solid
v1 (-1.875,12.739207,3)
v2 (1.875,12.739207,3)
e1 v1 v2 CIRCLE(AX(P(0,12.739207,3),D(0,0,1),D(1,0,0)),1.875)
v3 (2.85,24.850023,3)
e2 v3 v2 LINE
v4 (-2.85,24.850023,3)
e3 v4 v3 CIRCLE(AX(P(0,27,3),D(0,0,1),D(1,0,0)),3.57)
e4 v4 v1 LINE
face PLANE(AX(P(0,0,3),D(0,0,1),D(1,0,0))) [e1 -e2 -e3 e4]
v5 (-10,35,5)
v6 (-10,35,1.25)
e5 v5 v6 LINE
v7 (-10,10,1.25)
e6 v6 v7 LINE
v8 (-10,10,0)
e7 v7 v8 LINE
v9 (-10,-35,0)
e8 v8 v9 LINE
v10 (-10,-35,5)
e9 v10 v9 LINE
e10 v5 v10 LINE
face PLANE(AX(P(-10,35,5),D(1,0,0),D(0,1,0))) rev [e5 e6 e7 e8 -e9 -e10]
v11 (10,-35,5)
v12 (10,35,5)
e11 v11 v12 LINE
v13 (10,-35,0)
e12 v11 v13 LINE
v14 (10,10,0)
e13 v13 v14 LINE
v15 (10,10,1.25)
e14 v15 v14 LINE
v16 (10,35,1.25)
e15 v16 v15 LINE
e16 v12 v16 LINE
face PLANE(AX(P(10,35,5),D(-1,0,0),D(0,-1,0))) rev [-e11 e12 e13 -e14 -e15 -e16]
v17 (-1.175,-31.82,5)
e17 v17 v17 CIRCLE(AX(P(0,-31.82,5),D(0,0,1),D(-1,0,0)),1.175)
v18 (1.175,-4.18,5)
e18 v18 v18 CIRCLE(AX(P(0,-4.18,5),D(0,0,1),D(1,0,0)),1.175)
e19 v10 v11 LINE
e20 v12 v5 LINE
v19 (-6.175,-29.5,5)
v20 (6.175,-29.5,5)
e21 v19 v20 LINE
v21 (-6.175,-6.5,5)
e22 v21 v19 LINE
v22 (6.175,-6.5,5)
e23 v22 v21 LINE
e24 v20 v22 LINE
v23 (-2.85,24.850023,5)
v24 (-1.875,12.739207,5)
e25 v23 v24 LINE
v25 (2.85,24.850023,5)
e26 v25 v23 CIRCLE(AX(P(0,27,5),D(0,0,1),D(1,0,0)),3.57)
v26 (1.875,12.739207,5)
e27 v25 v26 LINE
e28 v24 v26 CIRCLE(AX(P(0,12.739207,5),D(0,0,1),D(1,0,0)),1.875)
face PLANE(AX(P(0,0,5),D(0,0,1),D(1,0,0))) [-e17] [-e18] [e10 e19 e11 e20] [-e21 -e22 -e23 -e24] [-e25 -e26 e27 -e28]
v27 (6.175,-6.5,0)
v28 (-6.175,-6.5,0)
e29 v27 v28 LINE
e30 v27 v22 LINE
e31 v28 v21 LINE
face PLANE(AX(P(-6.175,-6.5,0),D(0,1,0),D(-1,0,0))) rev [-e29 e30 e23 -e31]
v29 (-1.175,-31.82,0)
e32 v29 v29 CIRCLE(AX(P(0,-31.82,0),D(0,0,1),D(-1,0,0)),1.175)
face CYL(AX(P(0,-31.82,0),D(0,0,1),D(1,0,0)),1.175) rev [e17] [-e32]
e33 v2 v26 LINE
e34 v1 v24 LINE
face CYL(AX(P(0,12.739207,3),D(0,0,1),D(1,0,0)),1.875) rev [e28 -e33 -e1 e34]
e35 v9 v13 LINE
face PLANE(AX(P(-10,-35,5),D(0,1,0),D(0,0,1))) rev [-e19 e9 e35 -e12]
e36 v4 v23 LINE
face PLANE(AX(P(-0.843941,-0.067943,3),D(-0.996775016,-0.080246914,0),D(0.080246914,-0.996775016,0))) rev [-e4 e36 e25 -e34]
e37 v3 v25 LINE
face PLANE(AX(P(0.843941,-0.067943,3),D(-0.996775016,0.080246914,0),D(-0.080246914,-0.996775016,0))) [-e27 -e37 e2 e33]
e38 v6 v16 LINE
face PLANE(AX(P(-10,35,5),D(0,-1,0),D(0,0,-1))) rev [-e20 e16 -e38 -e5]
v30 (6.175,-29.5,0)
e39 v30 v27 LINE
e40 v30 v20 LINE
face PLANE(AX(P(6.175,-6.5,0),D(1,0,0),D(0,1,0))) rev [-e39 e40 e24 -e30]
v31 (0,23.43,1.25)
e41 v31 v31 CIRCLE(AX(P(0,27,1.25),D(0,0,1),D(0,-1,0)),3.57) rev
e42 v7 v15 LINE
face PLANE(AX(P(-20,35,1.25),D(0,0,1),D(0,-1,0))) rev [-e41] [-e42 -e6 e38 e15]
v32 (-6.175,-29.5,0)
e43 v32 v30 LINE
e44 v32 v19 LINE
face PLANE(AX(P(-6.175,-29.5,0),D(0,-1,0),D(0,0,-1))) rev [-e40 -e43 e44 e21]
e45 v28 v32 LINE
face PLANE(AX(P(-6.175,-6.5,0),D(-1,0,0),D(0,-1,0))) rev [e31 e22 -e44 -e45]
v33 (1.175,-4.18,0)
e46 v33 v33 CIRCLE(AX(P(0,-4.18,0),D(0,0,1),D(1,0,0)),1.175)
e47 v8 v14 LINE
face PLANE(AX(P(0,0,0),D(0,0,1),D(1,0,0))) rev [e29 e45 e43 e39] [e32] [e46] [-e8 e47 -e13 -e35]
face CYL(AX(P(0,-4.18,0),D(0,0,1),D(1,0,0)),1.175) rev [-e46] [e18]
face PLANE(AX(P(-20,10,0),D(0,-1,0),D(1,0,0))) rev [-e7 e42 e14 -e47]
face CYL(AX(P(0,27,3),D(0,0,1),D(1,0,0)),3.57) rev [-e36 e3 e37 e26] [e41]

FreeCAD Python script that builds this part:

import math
import FreeCAD as App
import Part
import Sketcher

V = App.Vector
Q = App.Units.Quantity


def add_polygon(sketch, points):
    """Adds a closed chain of lines whose ends are joined by coincident constraints."""
    first, n = sketch.GeometryCount, len(points)
    for a, b in zip(points, points[1:] + points[:1]):
        sketch.addGeometry(Part.LineSegment(App.Vector(*a, 0), App.Vector(*b, 0)), False)
    for i in range(n):
        sketch.addConstraint(Sketcher.Constraint("Coincident", first + i, 2, first + (i + 1) % n, 1))

doc = App.newDocument("Part")
params = doc.addObject("Spreadsheet::Sheet", "Params")
for row, (alias, value) in enumerate([
    ("sketch1_width", "20 mm"),
    ("sketch1_height", "70 mm"),
    ("pad1_length", "5 mm"),
    ("sketch2_radius", "3.57 mm"),
    ("sketch2_length", "12.15 mm"),
    ("pocket1_length", "2 mm"),
    ("sketch3_diameter", "7.14 mm"),
    ("pocket2_length", "3 mm"),
    ("sketch4_diameter", "2.35 mm"),
    ("sketch4_height", "23 mm"),
    ("sketch4_width", "12.35 mm"),
    ("pocket3_length", "5 mm"),
    ("sketch5_width", "25 mm"),
    ("sketch5_height", "1.25 mm"),
    ("pocket4_length", "30 mm"),
], start=1):
    params.set(f"A{row}", alias)
    params.set(f"B{row}", "=" + value)
    params.setAlias(f"B{row}", alias)

body = doc.addObject("PartDesign::Body", "Body")

# Sketch on XY plane
sketch1 = body.newObject("Sketcher::SketchObject", "Sketch")
sketch1.AttachmentSupport = (doc.getObject("XY_Plane"), [""])
sketch1.MapMode = "FlatFace"
add_polygon(sketch1, [(-10, 35), (-10, -35), (10, -35), (10, 35)])  # lines 0-3
sketch1.addConstraint(Sketcher.Constraint("Vertical", 0))
sketch1.addConstraint(Sketcher.Constraint("Horizontal", 1))
sketch1.addConstraint(Sketcher.Constraint("Vertical", 2))
sketch1.addConstraint(Sketcher.Constraint("Horizontal", 3))
sketch1.addConstraint(Sketcher.Constraint("Symmetric", 0, 2, 2, 2, -1, 1))
sketch1.addConstraint(Sketcher.Constraint("DistanceX", 1, 1, 1, 2, Q("20 mm")))
sketch1.addConstraint(Sketcher.Constraint("DistanceY", 0, 2, 0, 1, Q("70 mm")))
sketch1.setExpression("Constraints[9]", "Params.sketch1_width")
sketch1.setExpression("Constraints[10]", "Params.sketch1_height")
pad1 = body.newObject("PartDesign::Pad", "Pad")
pad1.Profile = sketch1
pad1.setExpression("Length", "Params.pad1_length")

# Sketch on XY plane
sketch2 = body.newObject("Sketcher::SketchObject", "Sketch001")
sketch2.AttachmentSupport = (doc.getObject("XY_Plane"), [""])
sketch2.MapMode = "FlatFace"
sketch2.AttachmentOffset = App.Placement(V(0, 0, 5), App.Rotation())
sketch2.addGeometry(Part.LineSegment(V(-2.9, 24.9, 0), V(-1.9, 12.7, 0)), False)
sketch2.addGeometry(Part.ArcOfCircle(Part.Circle(V(0, 12.7, 0), V(0, 0, 1), 1.9), math.radians(180), math.radians(360)), False)
sketch2.addGeometry(Part.LineSegment(V(1.9, 12.7, 0), V(2.9, 24.9, 0)), False)
sketch2.addGeometry(Part.ArcOfCircle(Part.Circle(V(0, 27, 0), V(0, 0, 1), 3.6), math.radians(-37), math.radians(0)), False)
sketch2.addGeometry(Part.ArcOfCircle(Part.Circle(V(0, 27, 0), V(0, 0, 1), 3.6), math.radians(0), math.radians(217)), False)
sketch2.addConstraint(Sketcher.Constraint("Coincident", 0, 2, 1, 1))
sketch2.addConstraint(Sketcher.Constraint("Coincident", 1, 2, 2, 1))
sketch2.addConstraint(Sketcher.Constraint("Coincident", 2, 2, 3, 1))
sketch2.addConstraint(Sketcher.Constraint("Tangent", 3, 2, 4, 1))
sketch2.addConstraint(Sketcher.Constraint("Coincident", 4, 2, 0, 1))
sketch2.addConstraint(Sketcher.Constraint("Equal", 3, 4))
sketch2.addConstraint(Sketcher.Constraint("Symmetric", 0, 2, 1, 2, -2))
sketch2.addConstraint(Sketcher.Constraint("Symmetric", 2, 2, 4, 2, -2))
sketch2.addConstraint(Sketcher.Constraint("Horizontal", 1, 3, 0, 2))
sketch2.addConstraint(Sketcher.Constraint("Horizontal", 4, 3, 3, 2))
sketch2.addConstraint(Sketcher.Constraint("Radius", 3, Q("3.57 mm")))
sketch2.addConstraint(Sketcher.Constraint("DistanceY", -1, 1, 3, 3, Q("27 mm")))
sketch2.addConstraint(Sketcher.Constraint("Radius", 1, Q("1.875 mm")))
sketch2.addConstraint(Sketcher.Constraint("DistanceX", 4, 2, 2, 2, Q("5.7 mm")))
sketch2.addConstraint(Sketcher.Constraint("Distance", 0, Q("12.15 mm")))
sketch2.setExpression("Constraints[10]", "Params.sketch2_radius")
sketch2.setExpression("Constraints[14]", "Params.sketch2_length")
pocket1 = body.newObject("PartDesign::Pocket", "Pocket")
pocket1.Profile = sketch2
pocket1.setExpression("Length", "Params.pocket1_length")

# Sketch on XY plane
sketch3 = body.newObject("Sketcher::SketchObject", "Sketch002")
sketch3.AttachmentSupport = (doc.getObject("XY_Plane"), [""])
sketch3.MapMode = "FlatFace"
sketch3.AttachmentOffset = App.Placement(V(0, 0, 3), App.Rotation())
sketch3.addGeometry(Part.Circle(V(0, 27, 0), V(0, 0, 1), 3.6), False)
sketch3.addConstraint(Sketcher.Constraint("PointOnObject", 0, 3, -2))
sketch3.addConstraint(Sketcher.Constraint("Diameter", 0, Q("7.14 mm")))
sketch3.addConstraint(Sketcher.Constraint("DistanceY", -1, 1, 0, 3, Q("27 mm")))
sketch3.setExpression("Constraints[1]", "Params.sketch3_diameter")
pocket2 = body.newObject("PartDesign::Pocket", "Pocket001")
pocket2.Profile = sketch3
pocket2.setExpression("Length", "Params.pocket2_length")

# Sketch on XY plane
sketch4 = body.newObject("Sketcher::SketchObject", "Sketch003")
sketch4.AttachmentSupport = (doc.getObject("XY_Plane"), [""])
sketch4.MapMode = "FlatFace"
sketch4.AttachmentOffset = App.Placement(V(0, 0, 5), App.Rotation())
sketch4.addGeometry(Part.Circle(V(0, -4.2, 0), V(0, 0, 1), 1.2), False)  # 0
sketch4.addGeometry(Part.Circle(V(0, -31.8, 0), V(0, 0, 1), 1.2), False)  # 1
add_polygon(sketch4, [(-6.2, -6.5), (-6.2, -29.5), (6.2, -29.5), (6.2, -6.5)])  # lines 2-5
sketch4.addConstraint(Sketcher.Constraint("Vertical", 2))
sketch4.addConstraint(Sketcher.Constraint("Horizontal", 3))
sketch4.addConstraint(Sketcher.Constraint("Vertical", 4))
sketch4.addConstraint(Sketcher.Constraint("Horizontal", 5))
sketch4.addConstraint(Sketcher.Constraint("Equal", 0, 1))
sketch4.addConstraint(Sketcher.Constraint("PointOnObject", 0, 3, -2))
sketch4.addConstraint(Sketcher.Constraint("PointOnObject", 1, 3, -2))
sketch4.addConstraint(Sketcher.Constraint("Diameter", 0, Q("2.35 mm")))
sketch4.addConstraint(Sketcher.Constraint("DistanceY", 2, 2, 2, 1, Q("23 mm")))
sketch4.addConstraint(Sketcher.Constraint("DistanceX", 3, 1, 3, 2, Q("12.35 mm")))
sketch4.addConstraint(Sketcher.Constraint("DistanceY", 2, 2, -1, 1, Q("29.5 mm")))
sketch4.addConstraint(Sketcher.Constraint("DistanceY", 0, 3, -1, 1, Q("4.18 mm")))
sketch4.addConstraint(Sketcher.Constraint("DistanceY", 1, 3, -1, 1, Q("31.82 mm")))
sketch4.addConstraint(Sketcher.Constraint("DistanceX", 2, 2, -1, 1, Q("6.175 mm")))
sketch4.setExpression("Constraints[11]", "Params.sketch4_diameter")
sketch4.setExpression("Constraints[12]", "Params.sketch4_height")
sketch4.setExpression("Constraints[13]", "Params.sketch4_width")
pocket3 = body.newObject("PartDesign::Pocket", "Pocket002")
pocket3.Profile = sketch4
pocket3.setExpression("Length", "Params.pocket3_length")

# Sketch on YZ plane
sketch5 = body.newObject("Sketcher::SketchObject", "Sketch004")
sketch5.AttachmentSupport = (doc.getObject("YZ_Plane"), [""])
sketch5.MapMode = "FlatFace"
sketch5.AttachmentOffset = App.Placement(V(0, 0, 10), App.Rotation())
add_polygon(sketch5, [(35, 1.2), (10, 1.2), (10, 0), (35, 0)])  # lines 0-3
sketch5.addConstraint(Sketcher.Constraint("Horizontal", 0))
sketch5.addConstraint(Sketcher.Constraint("Vertical", 1))
sketch5.addConstraint(Sketcher.Constraint("Horizontal", 2))
sketch5.addConstraint(Sketcher.Constraint("Vertical", 3))
sketch5.addConstraint(Sketcher.Constraint("PointOnObject", 1, 2, -1))
sketch5.addConstraint(Sketcher.Constraint("DistanceX", 0, 2, 0, 1, Q("25 mm")))
sketch5.addConstraint(Sketcher.Constraint("DistanceX", -1, 1, 0, 2, Q("10 mm")))
sketch5.addConstraint(Sketcher.Constraint("DistanceY", 1, 2, 1, 1, Q("1.25 mm")))
sketch5.setExpression("Constraints[9]", "Params.sketch5_width")
sketch5.setExpression("Constraints[11]", "Params.sketch5_height")
pocket4 = body.newObject("PartDesign::Pocket", "Pocket003")
pocket4.Profile = sketch5
pocket4.setExpression("Length", "Params.pocket4_length")

doc.recompute()
